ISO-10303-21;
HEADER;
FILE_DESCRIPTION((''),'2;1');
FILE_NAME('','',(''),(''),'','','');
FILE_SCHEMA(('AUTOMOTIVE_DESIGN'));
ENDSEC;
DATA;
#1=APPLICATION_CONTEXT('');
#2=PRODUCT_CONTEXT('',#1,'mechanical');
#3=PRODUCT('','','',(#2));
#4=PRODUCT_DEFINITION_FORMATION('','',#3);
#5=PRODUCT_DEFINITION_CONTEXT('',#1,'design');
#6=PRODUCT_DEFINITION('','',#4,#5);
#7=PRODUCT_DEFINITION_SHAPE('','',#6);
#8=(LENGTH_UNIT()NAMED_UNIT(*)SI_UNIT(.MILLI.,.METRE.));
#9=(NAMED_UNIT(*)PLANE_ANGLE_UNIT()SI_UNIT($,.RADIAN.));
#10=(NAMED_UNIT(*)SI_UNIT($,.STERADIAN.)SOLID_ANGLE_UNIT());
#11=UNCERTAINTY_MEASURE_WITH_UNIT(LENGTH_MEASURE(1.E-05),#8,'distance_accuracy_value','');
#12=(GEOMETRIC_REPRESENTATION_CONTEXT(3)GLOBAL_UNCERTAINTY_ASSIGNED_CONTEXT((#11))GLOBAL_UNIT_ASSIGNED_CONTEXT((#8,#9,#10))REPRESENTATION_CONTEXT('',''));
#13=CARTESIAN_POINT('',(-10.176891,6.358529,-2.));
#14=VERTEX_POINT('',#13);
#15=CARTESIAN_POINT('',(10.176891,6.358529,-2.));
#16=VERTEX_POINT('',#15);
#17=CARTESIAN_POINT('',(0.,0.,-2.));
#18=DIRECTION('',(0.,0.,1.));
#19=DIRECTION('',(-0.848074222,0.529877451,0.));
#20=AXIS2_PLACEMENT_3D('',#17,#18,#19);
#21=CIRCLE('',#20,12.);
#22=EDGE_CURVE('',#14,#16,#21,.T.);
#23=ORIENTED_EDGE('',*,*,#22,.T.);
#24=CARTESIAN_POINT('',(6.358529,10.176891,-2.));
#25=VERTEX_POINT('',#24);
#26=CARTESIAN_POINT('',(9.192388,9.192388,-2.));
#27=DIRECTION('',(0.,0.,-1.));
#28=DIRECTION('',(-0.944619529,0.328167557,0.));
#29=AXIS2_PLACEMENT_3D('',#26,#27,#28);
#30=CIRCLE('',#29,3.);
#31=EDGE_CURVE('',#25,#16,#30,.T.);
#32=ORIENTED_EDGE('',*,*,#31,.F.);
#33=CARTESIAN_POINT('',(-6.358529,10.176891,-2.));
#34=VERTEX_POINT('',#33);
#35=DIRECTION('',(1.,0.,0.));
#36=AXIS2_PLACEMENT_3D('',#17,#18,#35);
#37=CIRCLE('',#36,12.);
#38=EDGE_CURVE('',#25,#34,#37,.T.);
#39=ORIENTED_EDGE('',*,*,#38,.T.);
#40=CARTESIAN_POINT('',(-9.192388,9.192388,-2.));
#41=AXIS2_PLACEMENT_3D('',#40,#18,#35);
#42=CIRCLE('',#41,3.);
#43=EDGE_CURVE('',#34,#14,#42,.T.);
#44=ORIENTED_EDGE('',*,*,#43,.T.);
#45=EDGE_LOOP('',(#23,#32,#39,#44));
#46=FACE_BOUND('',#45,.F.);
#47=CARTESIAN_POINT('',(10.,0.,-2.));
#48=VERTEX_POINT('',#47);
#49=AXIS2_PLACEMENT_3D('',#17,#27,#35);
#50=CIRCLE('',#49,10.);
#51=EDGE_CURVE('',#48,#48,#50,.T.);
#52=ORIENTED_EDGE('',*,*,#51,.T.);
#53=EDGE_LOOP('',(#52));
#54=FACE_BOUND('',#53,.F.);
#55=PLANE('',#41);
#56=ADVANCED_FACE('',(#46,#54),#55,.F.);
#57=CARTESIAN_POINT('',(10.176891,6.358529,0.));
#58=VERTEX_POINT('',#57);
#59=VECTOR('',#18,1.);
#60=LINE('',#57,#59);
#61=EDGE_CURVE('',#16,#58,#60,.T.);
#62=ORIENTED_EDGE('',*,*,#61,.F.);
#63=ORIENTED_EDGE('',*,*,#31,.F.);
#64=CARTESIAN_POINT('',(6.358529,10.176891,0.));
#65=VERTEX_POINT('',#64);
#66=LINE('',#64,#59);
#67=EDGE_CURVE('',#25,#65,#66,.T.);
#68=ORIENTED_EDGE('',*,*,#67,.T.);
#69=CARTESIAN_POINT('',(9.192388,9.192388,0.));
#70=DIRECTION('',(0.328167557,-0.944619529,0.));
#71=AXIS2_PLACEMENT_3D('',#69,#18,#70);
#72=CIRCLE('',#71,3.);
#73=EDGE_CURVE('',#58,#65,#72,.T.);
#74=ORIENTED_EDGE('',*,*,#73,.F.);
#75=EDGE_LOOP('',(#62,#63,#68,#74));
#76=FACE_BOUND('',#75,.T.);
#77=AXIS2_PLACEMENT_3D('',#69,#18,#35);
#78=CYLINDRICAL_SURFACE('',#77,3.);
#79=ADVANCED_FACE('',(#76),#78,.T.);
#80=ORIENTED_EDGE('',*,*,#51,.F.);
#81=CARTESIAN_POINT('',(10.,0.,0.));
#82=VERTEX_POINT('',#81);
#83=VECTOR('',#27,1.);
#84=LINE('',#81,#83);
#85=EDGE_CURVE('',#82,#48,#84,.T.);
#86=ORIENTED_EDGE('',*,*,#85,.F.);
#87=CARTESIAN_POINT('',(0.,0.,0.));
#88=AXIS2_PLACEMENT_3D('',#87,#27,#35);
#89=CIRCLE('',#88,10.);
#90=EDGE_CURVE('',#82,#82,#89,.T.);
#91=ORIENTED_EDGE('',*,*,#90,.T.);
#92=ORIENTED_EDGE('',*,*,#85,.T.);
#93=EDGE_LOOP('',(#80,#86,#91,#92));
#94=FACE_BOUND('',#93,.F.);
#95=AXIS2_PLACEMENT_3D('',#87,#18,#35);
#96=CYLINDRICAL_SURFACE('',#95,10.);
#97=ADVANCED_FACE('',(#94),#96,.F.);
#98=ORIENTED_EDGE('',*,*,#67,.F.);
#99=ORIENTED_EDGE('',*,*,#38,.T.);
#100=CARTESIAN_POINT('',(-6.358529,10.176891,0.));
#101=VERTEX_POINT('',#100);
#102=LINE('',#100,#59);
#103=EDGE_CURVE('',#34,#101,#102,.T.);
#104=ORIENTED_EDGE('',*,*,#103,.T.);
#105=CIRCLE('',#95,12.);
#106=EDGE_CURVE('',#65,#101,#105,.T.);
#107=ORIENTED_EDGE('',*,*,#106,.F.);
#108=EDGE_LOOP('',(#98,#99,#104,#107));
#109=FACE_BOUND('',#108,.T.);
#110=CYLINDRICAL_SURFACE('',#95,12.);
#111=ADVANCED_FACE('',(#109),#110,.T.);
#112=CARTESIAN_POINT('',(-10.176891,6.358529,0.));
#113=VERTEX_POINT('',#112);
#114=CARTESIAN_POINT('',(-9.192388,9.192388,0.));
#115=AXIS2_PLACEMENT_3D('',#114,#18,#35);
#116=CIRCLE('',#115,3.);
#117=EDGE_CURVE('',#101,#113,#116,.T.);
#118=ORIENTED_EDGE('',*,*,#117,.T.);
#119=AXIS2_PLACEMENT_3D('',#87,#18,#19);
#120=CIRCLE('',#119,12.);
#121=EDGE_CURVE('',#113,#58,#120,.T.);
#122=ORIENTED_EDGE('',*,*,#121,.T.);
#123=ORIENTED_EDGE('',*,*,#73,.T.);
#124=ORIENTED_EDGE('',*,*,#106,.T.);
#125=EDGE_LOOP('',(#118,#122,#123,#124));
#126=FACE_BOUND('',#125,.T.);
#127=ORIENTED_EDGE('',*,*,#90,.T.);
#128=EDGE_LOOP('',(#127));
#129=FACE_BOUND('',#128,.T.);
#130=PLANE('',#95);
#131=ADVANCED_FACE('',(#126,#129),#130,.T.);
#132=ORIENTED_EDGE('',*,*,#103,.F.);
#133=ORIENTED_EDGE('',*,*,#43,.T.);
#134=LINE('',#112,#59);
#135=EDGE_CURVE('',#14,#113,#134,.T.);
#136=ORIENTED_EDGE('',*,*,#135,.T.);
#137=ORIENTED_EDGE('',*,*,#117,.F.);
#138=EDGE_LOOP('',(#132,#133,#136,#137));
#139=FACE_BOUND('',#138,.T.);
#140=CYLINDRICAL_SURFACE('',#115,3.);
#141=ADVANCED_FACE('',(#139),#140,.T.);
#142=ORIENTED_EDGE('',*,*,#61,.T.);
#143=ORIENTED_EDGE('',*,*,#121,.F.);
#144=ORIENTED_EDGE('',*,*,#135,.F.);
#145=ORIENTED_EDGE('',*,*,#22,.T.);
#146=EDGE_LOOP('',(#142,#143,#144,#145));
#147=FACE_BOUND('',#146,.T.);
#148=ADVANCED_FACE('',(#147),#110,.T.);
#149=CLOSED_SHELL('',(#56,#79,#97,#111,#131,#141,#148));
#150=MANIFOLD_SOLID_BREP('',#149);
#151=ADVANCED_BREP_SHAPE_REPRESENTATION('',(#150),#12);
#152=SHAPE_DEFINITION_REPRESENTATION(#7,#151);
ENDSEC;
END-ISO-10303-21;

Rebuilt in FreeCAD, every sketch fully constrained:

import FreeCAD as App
import Part
import Sketcher
from FreeCAD import Vector

doc = App.newDocument("Part")
body = doc.addObject("PartDesign::Body", "Body")

# Sketch on XY plane
sketch1 = doc.addObject("Sketcher::SketchObject", "Sketch")
body.addObject(sketch1)
sketch1.AttachmentSupport = (doc.XY_Plane, [""])
sketch1.MapMode = "FlatFace"
sketch1.addGeometry(Part.Circle(Vector(0, 0, 0), Vector(0, 0, 1), 12), False)
sketch1.addGeometry(Part.Circle(Vector(0, 0, 0), Vector(0, 0, 1), 10), False)
sketch1.addConstraint(Sketcher.Constraint("Coincident", 0, 3, -1, 1))
sketch1.addConstraint(Sketcher.Constraint("Coincident", 1, 3, -1, 1))
sketch1.addConstraint(Sketcher.Constraint("Diameter", 0, 24.0))
sketch1.addConstraint(Sketcher.Constraint("Diameter", 1, 20.0))
pad1 = doc.addObject("PartDesign::Pad", "Pad")
body.addObject(pad1)
pad1.Profile = sketch1
pad1.Length = 2
pad1.Reversed = True

# Sketch on XY plane
sketch2 = doc.addObject("Sketcher::SketchObject", "Sketch001")
body.addObject(sketch2)
sketch2.AttachmentSupport = (doc.XY_Plane, [""])
sketch2.MapMode = "FlatFace"
sketch2.addGeometry(Part.Circle(Vector(-9.2, 9.2, 0), Vector(0, 0, 1), 3), False)
sketch2.addGeometry(Part.Circle(Vector(9.2, 9.2, 0), Vector(0, 0, 1), 3), False)
sketch2.addConstraint(Sketcher.Constraint("Equal", 0, 1))
sketch2.addConstraint(Sketcher.Constraint("Symmetric", 0, 3, 1, 3, -2))
sketch2.addConstraint(Sketcher.Constraint("Diameter", 0, 6.0))
sketch2.addConstraint(Sketcher.Constraint("DistanceX", 0, 3, -1, 1, 9.192388))
sketch2.addConstraint(Sketcher.Constraint("DistanceY", -1, 1, 0, 3, 9.192388))
pad2 = doc.addObject("PartDesign::Pad", "Pad001")
body.addObject(pad2)
pad2.Profile = sketch2
pad2.Length = 2
pad2.Reversed = True

doc.recompute()
